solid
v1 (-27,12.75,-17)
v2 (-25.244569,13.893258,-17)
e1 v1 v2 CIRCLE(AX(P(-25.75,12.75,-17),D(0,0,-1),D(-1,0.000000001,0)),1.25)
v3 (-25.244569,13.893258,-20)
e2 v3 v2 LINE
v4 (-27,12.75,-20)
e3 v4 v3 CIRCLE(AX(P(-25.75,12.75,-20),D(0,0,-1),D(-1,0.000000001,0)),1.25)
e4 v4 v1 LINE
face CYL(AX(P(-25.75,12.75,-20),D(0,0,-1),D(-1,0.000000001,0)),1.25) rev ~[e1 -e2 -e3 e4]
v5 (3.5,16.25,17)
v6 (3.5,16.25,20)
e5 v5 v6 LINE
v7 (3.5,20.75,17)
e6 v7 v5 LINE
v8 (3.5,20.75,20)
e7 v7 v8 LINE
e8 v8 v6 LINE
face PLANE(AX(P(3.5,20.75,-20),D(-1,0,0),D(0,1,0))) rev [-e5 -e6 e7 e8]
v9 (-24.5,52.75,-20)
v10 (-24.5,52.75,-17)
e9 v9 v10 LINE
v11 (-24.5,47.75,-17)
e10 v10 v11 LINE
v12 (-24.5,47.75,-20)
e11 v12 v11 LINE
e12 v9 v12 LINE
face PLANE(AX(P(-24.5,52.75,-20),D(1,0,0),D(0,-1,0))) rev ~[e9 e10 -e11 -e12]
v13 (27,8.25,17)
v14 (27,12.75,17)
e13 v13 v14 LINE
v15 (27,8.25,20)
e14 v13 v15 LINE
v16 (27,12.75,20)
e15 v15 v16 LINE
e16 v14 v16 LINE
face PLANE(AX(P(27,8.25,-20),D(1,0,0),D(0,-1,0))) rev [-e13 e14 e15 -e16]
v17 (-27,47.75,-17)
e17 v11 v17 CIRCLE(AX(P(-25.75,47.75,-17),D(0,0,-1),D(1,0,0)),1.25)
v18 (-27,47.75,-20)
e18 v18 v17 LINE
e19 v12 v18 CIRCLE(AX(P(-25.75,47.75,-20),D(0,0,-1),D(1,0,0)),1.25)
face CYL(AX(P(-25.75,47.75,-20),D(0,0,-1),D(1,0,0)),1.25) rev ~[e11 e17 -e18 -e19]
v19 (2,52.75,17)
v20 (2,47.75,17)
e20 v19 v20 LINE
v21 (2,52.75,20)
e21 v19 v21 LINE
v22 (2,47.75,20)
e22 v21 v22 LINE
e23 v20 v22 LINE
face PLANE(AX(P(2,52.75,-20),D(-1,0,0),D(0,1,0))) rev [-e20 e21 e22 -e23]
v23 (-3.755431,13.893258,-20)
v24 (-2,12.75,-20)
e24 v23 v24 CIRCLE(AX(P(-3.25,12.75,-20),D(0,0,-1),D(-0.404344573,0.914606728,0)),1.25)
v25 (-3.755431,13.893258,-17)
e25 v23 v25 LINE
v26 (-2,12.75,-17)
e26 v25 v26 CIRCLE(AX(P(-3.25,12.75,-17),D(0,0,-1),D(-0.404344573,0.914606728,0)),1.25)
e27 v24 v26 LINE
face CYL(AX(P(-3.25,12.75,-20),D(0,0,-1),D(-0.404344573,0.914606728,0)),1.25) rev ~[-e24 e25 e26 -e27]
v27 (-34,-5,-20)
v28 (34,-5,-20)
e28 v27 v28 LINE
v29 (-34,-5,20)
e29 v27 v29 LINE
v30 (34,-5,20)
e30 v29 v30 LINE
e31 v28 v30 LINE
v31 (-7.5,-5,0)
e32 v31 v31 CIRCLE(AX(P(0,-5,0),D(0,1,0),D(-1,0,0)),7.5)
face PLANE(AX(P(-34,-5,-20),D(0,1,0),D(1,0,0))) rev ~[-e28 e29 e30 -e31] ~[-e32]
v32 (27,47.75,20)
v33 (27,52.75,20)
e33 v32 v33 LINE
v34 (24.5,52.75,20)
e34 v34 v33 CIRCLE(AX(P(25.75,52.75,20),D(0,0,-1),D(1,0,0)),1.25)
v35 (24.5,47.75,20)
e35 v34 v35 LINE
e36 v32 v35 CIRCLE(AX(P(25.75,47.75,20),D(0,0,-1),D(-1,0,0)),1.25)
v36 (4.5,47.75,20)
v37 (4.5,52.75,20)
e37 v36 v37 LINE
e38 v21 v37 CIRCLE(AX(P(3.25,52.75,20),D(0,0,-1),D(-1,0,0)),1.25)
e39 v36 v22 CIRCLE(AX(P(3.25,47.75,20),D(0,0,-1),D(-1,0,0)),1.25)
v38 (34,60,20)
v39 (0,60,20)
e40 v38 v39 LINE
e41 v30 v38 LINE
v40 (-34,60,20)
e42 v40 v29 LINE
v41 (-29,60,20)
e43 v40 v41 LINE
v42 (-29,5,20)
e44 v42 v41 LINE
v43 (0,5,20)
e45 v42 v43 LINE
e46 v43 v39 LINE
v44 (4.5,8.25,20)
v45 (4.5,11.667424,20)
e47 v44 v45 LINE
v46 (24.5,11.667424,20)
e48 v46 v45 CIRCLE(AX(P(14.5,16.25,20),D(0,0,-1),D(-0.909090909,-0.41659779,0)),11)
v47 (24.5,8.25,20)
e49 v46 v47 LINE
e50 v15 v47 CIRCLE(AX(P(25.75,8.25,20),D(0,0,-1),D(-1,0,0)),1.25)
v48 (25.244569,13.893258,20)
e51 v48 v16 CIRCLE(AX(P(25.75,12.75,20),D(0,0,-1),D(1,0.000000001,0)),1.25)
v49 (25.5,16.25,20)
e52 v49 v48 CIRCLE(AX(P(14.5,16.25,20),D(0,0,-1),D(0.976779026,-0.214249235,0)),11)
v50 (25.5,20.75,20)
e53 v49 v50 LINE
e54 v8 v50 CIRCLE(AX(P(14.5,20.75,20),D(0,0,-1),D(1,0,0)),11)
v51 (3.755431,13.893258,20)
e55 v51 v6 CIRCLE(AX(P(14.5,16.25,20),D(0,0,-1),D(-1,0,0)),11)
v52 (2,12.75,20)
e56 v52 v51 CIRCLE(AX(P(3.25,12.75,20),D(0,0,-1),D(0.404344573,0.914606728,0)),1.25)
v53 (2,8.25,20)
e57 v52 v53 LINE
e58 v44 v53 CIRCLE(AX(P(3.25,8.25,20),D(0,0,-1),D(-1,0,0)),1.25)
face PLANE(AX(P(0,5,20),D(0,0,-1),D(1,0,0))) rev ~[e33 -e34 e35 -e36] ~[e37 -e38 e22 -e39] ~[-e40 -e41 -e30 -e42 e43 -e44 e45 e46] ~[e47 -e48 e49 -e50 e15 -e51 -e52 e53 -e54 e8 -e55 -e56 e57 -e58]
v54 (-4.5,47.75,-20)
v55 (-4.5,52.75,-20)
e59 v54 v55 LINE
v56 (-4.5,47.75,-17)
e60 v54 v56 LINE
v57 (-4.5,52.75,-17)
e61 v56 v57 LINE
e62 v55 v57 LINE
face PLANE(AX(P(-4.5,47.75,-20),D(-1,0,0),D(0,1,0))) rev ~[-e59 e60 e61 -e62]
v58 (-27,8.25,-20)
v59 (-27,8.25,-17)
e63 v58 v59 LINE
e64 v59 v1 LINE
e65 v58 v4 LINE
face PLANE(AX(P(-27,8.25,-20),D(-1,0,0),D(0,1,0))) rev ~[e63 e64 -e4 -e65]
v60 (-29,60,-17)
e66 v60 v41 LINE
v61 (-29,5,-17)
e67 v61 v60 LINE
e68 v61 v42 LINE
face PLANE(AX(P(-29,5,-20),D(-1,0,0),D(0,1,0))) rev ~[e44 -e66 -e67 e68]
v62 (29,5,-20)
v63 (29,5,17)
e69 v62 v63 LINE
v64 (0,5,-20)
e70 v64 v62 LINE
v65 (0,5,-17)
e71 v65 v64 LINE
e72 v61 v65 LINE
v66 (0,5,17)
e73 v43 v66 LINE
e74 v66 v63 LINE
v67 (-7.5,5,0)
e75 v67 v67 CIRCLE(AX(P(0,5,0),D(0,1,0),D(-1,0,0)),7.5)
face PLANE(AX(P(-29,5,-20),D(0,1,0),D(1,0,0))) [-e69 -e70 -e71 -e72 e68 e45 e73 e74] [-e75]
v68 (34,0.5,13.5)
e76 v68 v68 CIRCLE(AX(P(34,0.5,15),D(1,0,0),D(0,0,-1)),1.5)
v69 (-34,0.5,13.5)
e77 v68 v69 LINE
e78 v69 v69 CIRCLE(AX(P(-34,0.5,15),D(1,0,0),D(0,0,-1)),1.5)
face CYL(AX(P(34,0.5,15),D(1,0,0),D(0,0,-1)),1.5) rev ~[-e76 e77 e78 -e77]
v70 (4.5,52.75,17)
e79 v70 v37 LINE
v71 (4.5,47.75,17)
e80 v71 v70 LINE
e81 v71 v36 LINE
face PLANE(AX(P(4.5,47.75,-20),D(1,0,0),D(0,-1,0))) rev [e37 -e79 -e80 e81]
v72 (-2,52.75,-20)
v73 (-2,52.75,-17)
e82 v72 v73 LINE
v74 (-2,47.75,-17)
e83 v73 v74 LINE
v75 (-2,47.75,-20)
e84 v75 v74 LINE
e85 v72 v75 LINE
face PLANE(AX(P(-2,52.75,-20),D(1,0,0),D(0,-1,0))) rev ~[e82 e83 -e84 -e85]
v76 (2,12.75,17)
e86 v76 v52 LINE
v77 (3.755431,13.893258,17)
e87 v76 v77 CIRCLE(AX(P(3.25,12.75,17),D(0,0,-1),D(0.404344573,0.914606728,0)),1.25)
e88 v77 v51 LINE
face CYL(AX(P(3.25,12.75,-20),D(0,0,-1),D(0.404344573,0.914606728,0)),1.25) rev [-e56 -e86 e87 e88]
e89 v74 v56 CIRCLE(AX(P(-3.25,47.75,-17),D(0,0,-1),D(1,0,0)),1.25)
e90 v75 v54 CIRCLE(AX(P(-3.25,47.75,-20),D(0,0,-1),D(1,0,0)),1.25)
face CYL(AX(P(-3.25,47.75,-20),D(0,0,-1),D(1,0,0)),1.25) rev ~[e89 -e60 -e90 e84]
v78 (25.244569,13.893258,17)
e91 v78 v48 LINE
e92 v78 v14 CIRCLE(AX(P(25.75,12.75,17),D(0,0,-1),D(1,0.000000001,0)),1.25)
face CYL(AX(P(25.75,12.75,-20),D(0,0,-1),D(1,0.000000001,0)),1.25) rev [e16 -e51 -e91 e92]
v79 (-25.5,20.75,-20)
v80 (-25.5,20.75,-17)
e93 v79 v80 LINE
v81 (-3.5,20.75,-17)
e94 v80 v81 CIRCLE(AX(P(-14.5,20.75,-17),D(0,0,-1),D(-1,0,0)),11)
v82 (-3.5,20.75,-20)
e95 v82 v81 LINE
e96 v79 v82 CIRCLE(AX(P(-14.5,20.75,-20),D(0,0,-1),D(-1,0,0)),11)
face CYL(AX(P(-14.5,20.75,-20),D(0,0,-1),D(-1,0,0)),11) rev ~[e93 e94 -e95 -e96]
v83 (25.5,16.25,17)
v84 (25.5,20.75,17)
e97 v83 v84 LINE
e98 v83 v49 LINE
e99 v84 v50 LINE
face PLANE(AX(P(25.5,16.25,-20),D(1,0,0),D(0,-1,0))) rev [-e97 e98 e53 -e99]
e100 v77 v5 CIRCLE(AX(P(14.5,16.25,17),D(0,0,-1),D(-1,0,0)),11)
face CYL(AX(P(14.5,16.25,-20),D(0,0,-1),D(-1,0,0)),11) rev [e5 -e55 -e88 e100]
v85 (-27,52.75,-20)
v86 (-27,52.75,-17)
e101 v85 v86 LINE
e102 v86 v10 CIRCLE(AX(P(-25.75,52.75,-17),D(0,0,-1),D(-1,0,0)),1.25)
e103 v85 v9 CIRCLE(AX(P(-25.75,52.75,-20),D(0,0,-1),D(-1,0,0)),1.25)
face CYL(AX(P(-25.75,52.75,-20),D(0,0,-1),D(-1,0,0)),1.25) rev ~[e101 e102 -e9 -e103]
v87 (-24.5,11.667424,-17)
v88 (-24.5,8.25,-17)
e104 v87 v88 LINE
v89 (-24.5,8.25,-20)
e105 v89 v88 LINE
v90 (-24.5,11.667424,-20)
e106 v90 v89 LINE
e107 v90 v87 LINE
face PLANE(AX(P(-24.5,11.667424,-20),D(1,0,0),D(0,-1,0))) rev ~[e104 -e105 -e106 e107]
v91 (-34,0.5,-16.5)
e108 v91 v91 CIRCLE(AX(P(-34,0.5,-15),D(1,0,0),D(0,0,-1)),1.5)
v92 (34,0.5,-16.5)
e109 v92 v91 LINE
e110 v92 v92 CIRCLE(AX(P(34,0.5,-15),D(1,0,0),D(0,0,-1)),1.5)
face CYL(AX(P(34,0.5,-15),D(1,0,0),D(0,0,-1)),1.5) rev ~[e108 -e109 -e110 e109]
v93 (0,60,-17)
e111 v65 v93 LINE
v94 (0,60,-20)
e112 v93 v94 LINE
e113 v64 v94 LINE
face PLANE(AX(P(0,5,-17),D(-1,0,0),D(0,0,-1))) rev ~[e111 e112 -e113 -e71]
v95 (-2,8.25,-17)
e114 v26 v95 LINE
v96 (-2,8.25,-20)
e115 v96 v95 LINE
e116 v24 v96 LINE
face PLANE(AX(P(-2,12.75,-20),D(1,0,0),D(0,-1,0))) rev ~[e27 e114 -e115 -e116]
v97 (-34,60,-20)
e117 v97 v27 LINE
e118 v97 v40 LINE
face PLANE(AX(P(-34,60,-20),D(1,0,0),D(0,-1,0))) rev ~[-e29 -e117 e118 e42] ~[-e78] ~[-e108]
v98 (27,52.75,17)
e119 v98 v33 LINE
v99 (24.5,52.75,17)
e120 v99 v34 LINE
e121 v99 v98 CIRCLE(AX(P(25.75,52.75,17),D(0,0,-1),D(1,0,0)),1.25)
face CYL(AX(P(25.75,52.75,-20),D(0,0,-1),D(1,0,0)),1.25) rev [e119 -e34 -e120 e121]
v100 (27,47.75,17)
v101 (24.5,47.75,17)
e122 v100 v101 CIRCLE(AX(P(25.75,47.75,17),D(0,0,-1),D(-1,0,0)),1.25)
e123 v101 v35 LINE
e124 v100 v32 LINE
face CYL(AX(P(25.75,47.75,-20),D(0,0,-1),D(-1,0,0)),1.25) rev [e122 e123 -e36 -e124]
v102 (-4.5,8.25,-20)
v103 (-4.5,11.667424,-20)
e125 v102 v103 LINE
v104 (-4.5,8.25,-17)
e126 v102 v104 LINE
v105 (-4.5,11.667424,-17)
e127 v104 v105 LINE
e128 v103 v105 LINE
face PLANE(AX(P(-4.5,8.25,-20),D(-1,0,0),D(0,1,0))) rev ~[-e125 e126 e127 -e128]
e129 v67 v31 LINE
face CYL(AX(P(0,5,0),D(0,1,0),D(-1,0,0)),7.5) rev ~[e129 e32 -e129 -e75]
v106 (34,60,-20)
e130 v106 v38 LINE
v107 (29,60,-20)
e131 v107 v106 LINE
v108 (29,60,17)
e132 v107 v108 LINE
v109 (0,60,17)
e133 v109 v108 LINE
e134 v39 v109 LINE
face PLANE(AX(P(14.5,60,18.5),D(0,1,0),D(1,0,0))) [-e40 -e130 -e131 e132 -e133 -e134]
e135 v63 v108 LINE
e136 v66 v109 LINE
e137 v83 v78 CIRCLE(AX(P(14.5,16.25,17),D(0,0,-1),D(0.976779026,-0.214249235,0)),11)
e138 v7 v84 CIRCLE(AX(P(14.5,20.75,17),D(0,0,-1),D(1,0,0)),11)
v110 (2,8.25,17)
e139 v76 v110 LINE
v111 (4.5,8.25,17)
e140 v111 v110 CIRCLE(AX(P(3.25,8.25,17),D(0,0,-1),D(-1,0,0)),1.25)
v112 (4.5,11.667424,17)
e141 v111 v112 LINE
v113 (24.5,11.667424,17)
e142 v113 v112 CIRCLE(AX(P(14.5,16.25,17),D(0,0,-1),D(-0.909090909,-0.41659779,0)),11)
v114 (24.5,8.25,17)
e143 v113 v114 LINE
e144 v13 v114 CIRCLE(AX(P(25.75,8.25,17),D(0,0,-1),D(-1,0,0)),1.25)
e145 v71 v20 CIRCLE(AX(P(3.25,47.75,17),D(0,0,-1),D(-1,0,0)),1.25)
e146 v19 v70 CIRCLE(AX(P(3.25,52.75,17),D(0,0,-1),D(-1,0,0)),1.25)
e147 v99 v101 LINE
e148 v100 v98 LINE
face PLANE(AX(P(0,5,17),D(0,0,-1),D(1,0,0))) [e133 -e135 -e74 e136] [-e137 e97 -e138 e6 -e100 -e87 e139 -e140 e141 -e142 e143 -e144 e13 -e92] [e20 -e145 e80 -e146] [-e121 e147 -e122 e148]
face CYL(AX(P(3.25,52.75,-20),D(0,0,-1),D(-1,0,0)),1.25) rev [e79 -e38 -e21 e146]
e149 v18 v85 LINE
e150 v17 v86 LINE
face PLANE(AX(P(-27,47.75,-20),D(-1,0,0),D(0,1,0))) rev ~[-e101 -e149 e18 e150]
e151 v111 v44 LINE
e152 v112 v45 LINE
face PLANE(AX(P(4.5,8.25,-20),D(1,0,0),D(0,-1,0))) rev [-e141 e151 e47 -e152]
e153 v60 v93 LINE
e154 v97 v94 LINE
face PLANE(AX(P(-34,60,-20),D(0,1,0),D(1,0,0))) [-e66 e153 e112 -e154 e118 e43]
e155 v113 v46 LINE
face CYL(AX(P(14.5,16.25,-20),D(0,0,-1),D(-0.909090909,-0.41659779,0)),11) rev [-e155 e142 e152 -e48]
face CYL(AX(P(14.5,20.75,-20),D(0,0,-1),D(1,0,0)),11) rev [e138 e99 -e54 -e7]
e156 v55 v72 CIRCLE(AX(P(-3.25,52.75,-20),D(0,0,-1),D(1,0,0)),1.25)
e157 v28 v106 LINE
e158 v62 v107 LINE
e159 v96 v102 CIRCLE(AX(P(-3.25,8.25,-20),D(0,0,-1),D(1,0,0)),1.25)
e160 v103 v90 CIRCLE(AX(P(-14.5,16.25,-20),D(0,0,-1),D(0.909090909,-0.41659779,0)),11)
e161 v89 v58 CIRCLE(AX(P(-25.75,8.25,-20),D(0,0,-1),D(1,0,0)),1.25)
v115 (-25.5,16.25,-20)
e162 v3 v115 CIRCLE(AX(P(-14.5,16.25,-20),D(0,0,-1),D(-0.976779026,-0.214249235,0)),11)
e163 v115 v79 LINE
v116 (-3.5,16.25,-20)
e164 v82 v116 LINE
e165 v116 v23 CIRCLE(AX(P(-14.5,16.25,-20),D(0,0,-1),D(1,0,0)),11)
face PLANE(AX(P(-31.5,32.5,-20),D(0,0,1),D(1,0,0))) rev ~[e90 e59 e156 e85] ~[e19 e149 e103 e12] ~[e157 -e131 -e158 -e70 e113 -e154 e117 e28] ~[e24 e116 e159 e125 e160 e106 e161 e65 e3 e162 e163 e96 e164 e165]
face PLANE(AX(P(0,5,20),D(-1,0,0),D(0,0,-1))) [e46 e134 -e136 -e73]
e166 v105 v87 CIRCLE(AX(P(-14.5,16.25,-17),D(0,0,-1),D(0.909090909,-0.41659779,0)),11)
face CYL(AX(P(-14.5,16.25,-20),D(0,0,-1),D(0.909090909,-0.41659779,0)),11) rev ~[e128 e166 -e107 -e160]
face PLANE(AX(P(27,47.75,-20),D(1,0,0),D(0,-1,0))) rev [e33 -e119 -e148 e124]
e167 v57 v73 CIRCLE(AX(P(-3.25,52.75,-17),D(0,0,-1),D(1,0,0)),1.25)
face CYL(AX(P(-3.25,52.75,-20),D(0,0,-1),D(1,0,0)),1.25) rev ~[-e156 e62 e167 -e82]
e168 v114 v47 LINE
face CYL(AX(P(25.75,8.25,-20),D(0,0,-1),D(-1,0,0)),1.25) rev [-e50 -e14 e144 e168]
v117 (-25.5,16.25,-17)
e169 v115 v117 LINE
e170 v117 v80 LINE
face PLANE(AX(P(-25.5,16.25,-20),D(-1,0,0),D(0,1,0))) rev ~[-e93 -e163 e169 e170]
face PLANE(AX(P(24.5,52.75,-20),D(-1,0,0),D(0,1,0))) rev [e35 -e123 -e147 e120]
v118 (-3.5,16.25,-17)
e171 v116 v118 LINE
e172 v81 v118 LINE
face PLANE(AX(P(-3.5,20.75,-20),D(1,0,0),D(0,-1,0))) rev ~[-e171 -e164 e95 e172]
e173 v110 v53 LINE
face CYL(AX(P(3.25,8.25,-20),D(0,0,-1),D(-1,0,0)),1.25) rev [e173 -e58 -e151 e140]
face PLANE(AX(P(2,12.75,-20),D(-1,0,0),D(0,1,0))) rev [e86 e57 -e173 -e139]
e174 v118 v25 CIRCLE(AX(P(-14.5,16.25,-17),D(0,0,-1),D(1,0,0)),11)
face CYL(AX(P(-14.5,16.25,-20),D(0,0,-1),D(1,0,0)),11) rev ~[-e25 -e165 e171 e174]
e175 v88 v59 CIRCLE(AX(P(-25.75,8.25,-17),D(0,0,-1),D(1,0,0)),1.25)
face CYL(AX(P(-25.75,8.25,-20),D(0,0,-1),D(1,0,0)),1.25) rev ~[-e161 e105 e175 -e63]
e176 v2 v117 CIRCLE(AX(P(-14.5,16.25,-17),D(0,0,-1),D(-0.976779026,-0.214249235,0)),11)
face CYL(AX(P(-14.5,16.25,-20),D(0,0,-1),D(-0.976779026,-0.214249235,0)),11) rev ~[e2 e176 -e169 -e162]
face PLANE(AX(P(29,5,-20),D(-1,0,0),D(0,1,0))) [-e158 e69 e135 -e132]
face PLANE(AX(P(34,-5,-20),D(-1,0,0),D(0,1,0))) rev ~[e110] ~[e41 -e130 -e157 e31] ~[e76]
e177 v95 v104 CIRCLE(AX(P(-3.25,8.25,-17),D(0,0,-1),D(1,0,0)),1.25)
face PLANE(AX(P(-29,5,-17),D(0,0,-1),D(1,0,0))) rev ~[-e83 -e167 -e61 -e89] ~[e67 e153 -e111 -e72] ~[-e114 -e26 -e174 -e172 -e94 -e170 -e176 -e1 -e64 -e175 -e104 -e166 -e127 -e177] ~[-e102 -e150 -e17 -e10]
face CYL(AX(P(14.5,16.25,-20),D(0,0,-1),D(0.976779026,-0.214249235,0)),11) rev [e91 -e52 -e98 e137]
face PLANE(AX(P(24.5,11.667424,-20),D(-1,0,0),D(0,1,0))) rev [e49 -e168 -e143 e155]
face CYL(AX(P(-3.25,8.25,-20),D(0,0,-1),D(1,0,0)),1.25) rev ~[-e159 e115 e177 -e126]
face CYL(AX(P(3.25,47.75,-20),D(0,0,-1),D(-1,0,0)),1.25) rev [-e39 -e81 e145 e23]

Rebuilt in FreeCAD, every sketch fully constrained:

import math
import FreeCAD as App
import Part
import Sketcher
Q = App.Units.Quantity

doc = App.newDocument("Part")
body = doc.addObject("PartDesign::Body", "Body")

# Sketch on XY plane
sketch1 = body.newObject("Sketcher::SketchObject", "Sketch")
sketch1.AttachmentSupport = (doc.getObject("XY_Plane"), [""])
sketch1.MapMode = "FlatFace"
sketch1.addGeometry([
    Part.LineSegment(App.Vector(-34, 60, 0), App.Vector(-34, -5, 0)),  # 0
    Part.LineSegment(App.Vector(-34, -5, 0), App.Vector(34, -5, 0)),  # 1
    Part.LineSegment(App.Vector(34, -5, 0), App.Vector(34, 60, 0)),  # 2
    Part.LineSegment(App.Vector(34, 60, 0), App.Vector(29, 60, 0)),  # 3
    Part.LineSegment(App.Vector(29, 60, 0), App.Vector(29, 5, 0)),  # 4
    Part.LineSegment(App.Vector(29, 5, 0), App.Vector(-29, 5, 0)),  # 5
    Part.LineSegment(App.Vector(-29, 5, 0), App.Vector(-29, 60, 0)),  # 6
    Part.LineSegment(App.Vector(-29, 60, 0), App.Vector(-34, 60, 0)),  # 7
], False)
sketch1.addConstraint([
    Sketcher.Constraint("Coincident", 0, 2, 1, 1),
    Sketcher.Constraint("Coincident", 1, 2, 2, 1),
    Sketcher.Constraint("Coincident", 2, 2, 3, 1),
    Sketcher.Constraint("Coincident", 3, 2, 4, 1),
    Sketcher.Constraint("Coincident", 4, 2, 5, 1),
    Sketcher.Constraint("Coincident", 5, 2, 6, 1),
    Sketcher.Constraint("Coincident", 6, 2, 7, 1),
    Sketcher.Constraint("Coincident", 7, 2, 0, 1),
    Sketcher.Constraint("Vertical", 0),
    Sketcher.Constraint("Horizontal", 1),
    Sketcher.Constraint("Vertical", 2),
    Sketcher.Constraint("Horizontal", 3),
    Sketcher.Constraint("Vertical", 4),
    Sketcher.Constraint("Horizontal", 5),
    Sketcher.Constraint("Vertical", 6),
    Sketcher.Constraint("Horizontal", 7),
    Sketcher.Constraint("Symmetric", 3, 2, 6, 2, -2),
    Sketcher.Constraint("Equal", 3, 7),
    Sketcher.Constraint("DistanceX", 1, 1, 1, 2, Q("68 mm")),
    Sketcher.Constraint("DistanceX", 3, 2, 3, 1, Q("5 mm")),
    Sketcher.Constraint("DistanceY", 0, 2, 0, 1, Q("65 mm")),
    Sketcher.Constraint("DistanceY", 4, 2, 4, 1, Q("55 mm")),
    Sketcher.Constraint("DistanceY", 0, 2, -1, 1, Q("5 mm")),
])
pad1 = body.newObject("PartDesign::Pad", "Pad")
pad1.Profile = sketch1
pad1.Type = "TwoLengths"
pad1.Length = 20
pad1.Length2 = 20

# Sketch on XZ plane
sketch2 = body.newObject("Sketcher::SketchObject", "Sketch001")
sketch2.AttachmentSupport = (doc.getObject("XZ_Plane"), [""])
sketch2.MapMode = "FlatFace"
sketch2.AttachmentOffset = App.Placement(App.Vector(0, 0, -5), App.Rotation())
sketch2.addGeometry([
    Part.LineSegment(App.Vector(0, 17, 0), App.Vector(0, 20, 0)),  # 0
    Part.LineSegment(App.Vector(0, 20, 0), App.Vector(29, 20, 0)),  # 1
    Part.LineSegment(App.Vector(29, 20, 0), App.Vector(29, 17, 0)),  # 2
    Part.LineSegment(App.Vector(29, 17, 0), App.Vector(0, 17, 0)),  # 3
    Part.LineSegment(App.Vector(-29, -20, 0), App.Vector(-29, -17, 0)),  # 4
    Part.LineSegment(App.Vector(-29, -17, 0), App.Vector(0, -17, 0)),  # 5
    Part.LineSegment(App.Vector(0, -17, 0), App.Vector(0, -20, 0)),  # 6
    Part.LineSegment(App.Vector(0, -20, 0), App.Vector(-29, -20, 0)),  # 7
], False)
sketch2.addConstraint([
    Sketcher.Constraint("Coincident", 0, 2, 1, 1),
    Sketcher.Constraint("Coincident", 1, 2, 2, 1),
    Sketcher.Constraint("Coincident", 2, 2, 3, 1),
    Sketcher.Constraint("Coincident", 3, 2, 0, 1),
    Sketcher.Constraint("Coincident", 4, 2, 5, 1),
    Sketcher.Constraint("Coincident", 5, 2, 6, 1),
    Sketcher.Constraint("Coincident", 6, 2, 7, 1),
    Sketcher.Constraint("Coincident", 7, 2, 4, 1),
    Sketcher.Constraint("Vertical", 0),
    Sketcher.Constraint("Horizontal", 1),
    Sketcher.Constraint("Vertical", 2),
    Sketcher.Constraint("Horizontal", 3),
    Sketcher.Constraint("Vertical", 4),
    Sketcher.Constraint("Horizontal", 5),
    Sketcher.Constraint("Vertical", 6),
    Sketcher.Constraint("Horizontal", 7),
    Sketcher.Constraint("Symmetric", 2, 2, 4, 2, -1, 1),
    Sketcher.Constraint("Symmetric", 0, 2, 6, 2, -1, 1),
    Sketcher.Constraint("PointOnObject", 0, 2, -2),
    Sketcher.Constraint("DistanceX", 1, 1, 1, 2, Q("29 mm")),
    Sketcher.Constraint("DistanceY", 0, 1, 0, 2, Q("3 mm")),
    Sketcher.Constraint("DistanceY", -1, 1, 0, 2, Q("20 mm")),
])
pad2 = body.newObject("PartDesign::Pad", "Pad001")
pad2.Profile = sketch2
pad2.Length = 55
pad2.Reversed = True

# Sketch on XZ plane
sketch3 = body.newObject("Sketcher::SketchObject", "Sketch002")
sketch3.AttachmentSupport = (doc.getObject("XZ_Plane"), [""])
sketch3.MapMode = "FlatFace"
sketch3.AttachmentOffset = App.Placement(App.Vector(0, 0, -5), App.Rotation())
sketch3.addGeometry(Part.Circle(App.Vector(0, 0, 0), App.Vector(0, 0, 1), 8), False)
sketch3.addConstraint([
    Sketcher.Constraint("Coincident", 0, 3, -1, 1),
    Sketcher.Constraint("Diameter", 0, Q("15 mm")),
])
pocket1 = body.newObject("PartDesign::Pocket", "Pocket")
pocket1.Profile = sketch3
pocket1.Length = 12
pocket1.Reversed = True

# Sketch on YZ plane
sketch4 = body.newObject("Sketcher::SketchObject", "Sketch003")
sketch4.AttachmentSupport = (doc.getObject("YZ_Plane"), [""])
sketch4.MapMode = "FlatFace"
sketch4.AttachmentOffset = App.Placement(App.Vector(0, 0, 34), App.Rotation())
sketch4.addGeometry([
    Part.Circle(App.Vector(0.5, 15, 0), App.Vector(0, 0, 1), 1.5),
    Part.Circle(App.Vector(0.5, -15, 0), App.Vector(0, 0, 1), 1.5),
], False)
sketch4.addConstraint([
    Sketcher.Constraint("Equal", 0, 1),
    Sketcher.Constraint("Symmetric", 0, 3, 1, 3, -1),
    Sketcher.Constraint("Diameter", 0, Q("3 mm")),
    Sketcher.Constraint("DistanceY", -1, 1, 0, 3, Q("15 mm")),
    Sketcher.Constraint("DistanceX", -1, 1, 0, 3, Q("0.5 mm")),
])
pocket2 = body.newObject("PartDesign::Pocket", "Pocket001")
pocket2.Profile = sketch4
pocket2.Type = "ThroughAll"

# Sketch on XY plane
sketch5 = body.newObject("Sketcher::SketchObject", "Sketch004")
sketch5.AttachmentSupport = (doc.getObject("XY_Plane"), [""])
sketch5.MapMode = "FlatFace"
sketch5.AttachmentOffset = App.Placement(App.Vector(0, 0, -20), App.Rotation())
sketch5.addGeometry([
    Part.LineSegment(App.Vector(-25.5, 16.2, 0), App.Vector(-25.5, 20.8, 0)),  # 0
    Part.ArcOfCircle(Part.Circle(App.Vector(-14.5, 20.8, 0), App.Vector(0, 0, 1), 11), math.radians(0), math.radians(180)),  # 1
    Part.LineSegment(App.Vector(-3.5, 20.8, 0), App.Vector(-3.5, 16.2, 0)),  # 2
    Part.ArcOfCircle(Part.Circle(App.Vector(-14.5, 16.3, 0), App.Vector(0, 0, 1), 11), math.radians(-12.37), math.radians(0)),  # 3
    Part.ArcOfCircle(Part.Circle(App.Vector(-3.2, 12.7, 0), App.Vector(0, 0, 1), 1.2), math.radians(0), math.radians(114)),  # 4
    Part.LineSegment(App.Vector(-2, 12.8, 0), App.Vector(-2, 8.2, 0)),  # 5
    Part.ArcOfCircle(Part.Circle(App.Vector(-3.2, 8.2, 0), App.Vector(0, 0, 1), 1.2), math.radians(180), math.radians(360)),  # 6
    Part.LineSegment(App.Vector(-4.5, 8.2, 0), App.Vector(-4.5, 11.7, 0)),  # 7
    Part.ArcOfCircle(Part.Circle(App.Vector(-14.5, 16.2, 0), App.Vector(0, 0, 1), 11), math.radians(-155), math.radians(-25)),  # 8
    Part.LineSegment(App.Vector(-24.5, 11.7, 0), App.Vector(-24.5, 8.2, 0)),  # 9
    Part.ArcOfCircle(Part.Circle(App.Vector(-25.8, 8.2, 0), App.Vector(0, 0, 1), 1.2), math.radians(180), math.radians(360)),  # 10
    Part.LineSegment(App.Vector(-27, 8.2, 0), App.Vector(-27, 12.8, 0)),  # 11
    Part.ArcOfCircle(Part.Circle(App.Vector(-25.8, 12.7, 0), App.Vector(0, 0, 1), 1.2), math.radians(66), math.radians(180)),  # 12
    Part.ArcOfCircle(Part.Circle(App.Vector(-14.5, 16.3, 0), App.Vector(0, 0, 1), 11), math.radians(-180), math.radians(-167.63)),  # 13
    Part.LineSegment(App.Vector(-2, 52.8, 0), App.Vector(-2, 47.8, 0)),  # 14
    Part.ArcOfCircle(Part.Circle(App.Vector(-3.2, 47.8, 0), App.Vector(0, 0, 1), 1.2), math.radians(180), math.radians(360)),  # 15
    Part.LineSegment(App.Vector(-4.5, 47.8, 0), App.Vector(-4.5, 52.8, 0)),  # 16
    Part.ArcOfCircle(Part.Circle(App.Vector(-3.2, 52.8, 0), App.Vector(0, 0, 1), 1.2), math.radians(0), math.radians(180)),  # 17
    Part.LineSegment(App.Vector(-27, 47.8, 0), App.Vector(-27, 52.8, 0)),  # 18
    Part.ArcOfCircle(Part.Circle(App.Vector(-25.8, 52.8, 0), App.Vector(0, 0, 1), 1.2), math.radians(0), math.radians(180)),  # 19
    Part.LineSegment(App.Vector(-24.5, 52.8, 0), App.Vector(-24.5, 47.8, 0)),  # 20
    Part.ArcOfCircle(Part.Circle(App.Vector(-25.8, 47.8, 0), App.Vector(0, 0, 1), 1.2), math.radians(180), math.radians(360)),  # 21
], False)
sketch5.addConstraint([
    Sketcher.Constraint("Tangent", 0, 2, 1, 2),
    Sketcher.Constraint("Tangent", 1, 1, 2, 1),
    Sketcher.Constraint("Tangent", 2, 2, 3, 2),
    Sketcher.Constraint("Coincident", 3, 1, 4, 2),
    Sketcher.Constraint("Tangent", 4, 1, 5, 1),
    Sketcher.Constraint("Tangent", 5, 2, 6, 2),
    Sketcher.Constraint("Tangent", 6, 1, 7, 1),
    Sketcher.Constraint("Coincident", 7, 2, 8, 2),
    Sketcher.Constraint("Coincident", 8, 1, 9, 1),
    Sketcher.Constraint("Tangent", 9, 2, 10, 2),
    Sketcher.Constraint("Tangent", 10, 1, 11, 1),
    Sketcher.Constraint("Tangent", 11, 2, 12, 2),
    Sketcher.Constraint("Coincident", 12, 1, 13, 2),
    Sketcher.Constraint("Tangent", 13, 1, 0, 1),
    Sketcher.Constraint("Tangent", 14, 2, 15, 2),
    Sketcher.Constraint("Tangent", 15, 1, 16, 1),
    Sketcher.Constraint("Tangent", 16, 2, 17, 2),
    Sketcher.Constraint("Tangent", 17, 1, 14, 1),
    Sketcher.Constraint("Tangent", 18, 2, 19, 2),
    Sketcher.Constraint("Tangent", 19, 1, 20, 1),
    Sketcher.Constraint("Tangent", 20, 2, 21, 2),
    Sketcher.Constraint("Tangent", 21, 1, 18, 1),
    Sketcher.Constraint("Vertical", 0),
    Sketcher.Constraint("Vertical", 2),
    Sketcher.Constraint("Vertical", 5),
    Sketcher.Constraint("Vertical", 7),
    Sketcher.Constraint("Vertical", 9),
    Sketcher.Constraint("Vertical", 11),
    Sketcher.Constraint("Vertical", 14),
    Sketcher.Constraint("Vertical", 16),
    Sketcher.Constraint("Vertical", 18),
    Sketcher.Constraint("Vertical", 20),
    Sketcher.Constraint("Coincident", 8, 3, 3, 3),
    Sketcher.Constraint("Coincident", 13, 3, 3, 3),
    Sketcher.Constraint("Equal", 1, 3),
    Sketcher.Constraint("Equal", 4, 6),
    Sketcher.Constraint("Equal", 3, 8),
    Sketcher.Constraint("Equal", 6, 10),
    Sketcher.Constraint("Equal", 10, 12),
    Sketcher.Constraint("Equal", 12, 15),
    Sketcher.Constraint("Equal", 17, 19),
    Sketcher.Constraint("Horizontal", 6, 3, 10, 3),
    Sketcher.Constraint("Horizontal", 4, 3, 12, 3),
    Sketcher.Constraint("Horizontal", 17, 3, 19, 3),
    Sketcher.Constraint("Horizontal", 15, 3, 21, 3),
    Sketcher.Constraint("Horizontal", 7, 2, 8, 1),
    Sketcher.Constraint("Vertical", 6, 3, 15, 3),
    Sketcher.Constraint("Vertical", 12, 3, 19, 3),
    Sketcher.Constraint("Equal", 2, 5),
    Sketcher.Constraint("Radius", 1, Q("11 mm")),
    Sketcher.Constraint("DistanceY", 14, 2, 14, 1, Q("5 mm")),
    Sketcher.Constraint("Radius", 4, Q("1.25 mm")),
    Sketcher.Constraint("DistanceY", 0, 1, 0, 2, Q("4.5 mm")),
    Sketcher.Constraint("DistanceX", 4, 1, -1, 1, Q("2 mm")),
    Sketcher.Constraint("DistanceX", 10, 1, -1, 1, Q("27 mm")),
    Sketcher.Constraint("DistanceY", 4, 3, 1, 3, Q("8 mm")),
    Sketcher.Constraint("DistanceY", 1, 3, 15, 3, Q("27 mm")),
    Sketcher.Constraint("DistanceY", -1, 1, 1, 3, Q("20.75 mm")),
])
pocket3 = body.newObject("PartDesign::Pocket", "Pocket002")
pocket3.Profile = sketch5
pocket3.Length = 63
pocket3.Reversed = True
doc.recompute()

mirrored = body.newObject("PartDesign::Mirrored", "Mirrored")
mirrored.Originals = [pocket3]
mirrored.MirrorPlane = (doc.getObject("YZ_Plane"), [""])
body.Tip = mirrored

doc.recompute()
